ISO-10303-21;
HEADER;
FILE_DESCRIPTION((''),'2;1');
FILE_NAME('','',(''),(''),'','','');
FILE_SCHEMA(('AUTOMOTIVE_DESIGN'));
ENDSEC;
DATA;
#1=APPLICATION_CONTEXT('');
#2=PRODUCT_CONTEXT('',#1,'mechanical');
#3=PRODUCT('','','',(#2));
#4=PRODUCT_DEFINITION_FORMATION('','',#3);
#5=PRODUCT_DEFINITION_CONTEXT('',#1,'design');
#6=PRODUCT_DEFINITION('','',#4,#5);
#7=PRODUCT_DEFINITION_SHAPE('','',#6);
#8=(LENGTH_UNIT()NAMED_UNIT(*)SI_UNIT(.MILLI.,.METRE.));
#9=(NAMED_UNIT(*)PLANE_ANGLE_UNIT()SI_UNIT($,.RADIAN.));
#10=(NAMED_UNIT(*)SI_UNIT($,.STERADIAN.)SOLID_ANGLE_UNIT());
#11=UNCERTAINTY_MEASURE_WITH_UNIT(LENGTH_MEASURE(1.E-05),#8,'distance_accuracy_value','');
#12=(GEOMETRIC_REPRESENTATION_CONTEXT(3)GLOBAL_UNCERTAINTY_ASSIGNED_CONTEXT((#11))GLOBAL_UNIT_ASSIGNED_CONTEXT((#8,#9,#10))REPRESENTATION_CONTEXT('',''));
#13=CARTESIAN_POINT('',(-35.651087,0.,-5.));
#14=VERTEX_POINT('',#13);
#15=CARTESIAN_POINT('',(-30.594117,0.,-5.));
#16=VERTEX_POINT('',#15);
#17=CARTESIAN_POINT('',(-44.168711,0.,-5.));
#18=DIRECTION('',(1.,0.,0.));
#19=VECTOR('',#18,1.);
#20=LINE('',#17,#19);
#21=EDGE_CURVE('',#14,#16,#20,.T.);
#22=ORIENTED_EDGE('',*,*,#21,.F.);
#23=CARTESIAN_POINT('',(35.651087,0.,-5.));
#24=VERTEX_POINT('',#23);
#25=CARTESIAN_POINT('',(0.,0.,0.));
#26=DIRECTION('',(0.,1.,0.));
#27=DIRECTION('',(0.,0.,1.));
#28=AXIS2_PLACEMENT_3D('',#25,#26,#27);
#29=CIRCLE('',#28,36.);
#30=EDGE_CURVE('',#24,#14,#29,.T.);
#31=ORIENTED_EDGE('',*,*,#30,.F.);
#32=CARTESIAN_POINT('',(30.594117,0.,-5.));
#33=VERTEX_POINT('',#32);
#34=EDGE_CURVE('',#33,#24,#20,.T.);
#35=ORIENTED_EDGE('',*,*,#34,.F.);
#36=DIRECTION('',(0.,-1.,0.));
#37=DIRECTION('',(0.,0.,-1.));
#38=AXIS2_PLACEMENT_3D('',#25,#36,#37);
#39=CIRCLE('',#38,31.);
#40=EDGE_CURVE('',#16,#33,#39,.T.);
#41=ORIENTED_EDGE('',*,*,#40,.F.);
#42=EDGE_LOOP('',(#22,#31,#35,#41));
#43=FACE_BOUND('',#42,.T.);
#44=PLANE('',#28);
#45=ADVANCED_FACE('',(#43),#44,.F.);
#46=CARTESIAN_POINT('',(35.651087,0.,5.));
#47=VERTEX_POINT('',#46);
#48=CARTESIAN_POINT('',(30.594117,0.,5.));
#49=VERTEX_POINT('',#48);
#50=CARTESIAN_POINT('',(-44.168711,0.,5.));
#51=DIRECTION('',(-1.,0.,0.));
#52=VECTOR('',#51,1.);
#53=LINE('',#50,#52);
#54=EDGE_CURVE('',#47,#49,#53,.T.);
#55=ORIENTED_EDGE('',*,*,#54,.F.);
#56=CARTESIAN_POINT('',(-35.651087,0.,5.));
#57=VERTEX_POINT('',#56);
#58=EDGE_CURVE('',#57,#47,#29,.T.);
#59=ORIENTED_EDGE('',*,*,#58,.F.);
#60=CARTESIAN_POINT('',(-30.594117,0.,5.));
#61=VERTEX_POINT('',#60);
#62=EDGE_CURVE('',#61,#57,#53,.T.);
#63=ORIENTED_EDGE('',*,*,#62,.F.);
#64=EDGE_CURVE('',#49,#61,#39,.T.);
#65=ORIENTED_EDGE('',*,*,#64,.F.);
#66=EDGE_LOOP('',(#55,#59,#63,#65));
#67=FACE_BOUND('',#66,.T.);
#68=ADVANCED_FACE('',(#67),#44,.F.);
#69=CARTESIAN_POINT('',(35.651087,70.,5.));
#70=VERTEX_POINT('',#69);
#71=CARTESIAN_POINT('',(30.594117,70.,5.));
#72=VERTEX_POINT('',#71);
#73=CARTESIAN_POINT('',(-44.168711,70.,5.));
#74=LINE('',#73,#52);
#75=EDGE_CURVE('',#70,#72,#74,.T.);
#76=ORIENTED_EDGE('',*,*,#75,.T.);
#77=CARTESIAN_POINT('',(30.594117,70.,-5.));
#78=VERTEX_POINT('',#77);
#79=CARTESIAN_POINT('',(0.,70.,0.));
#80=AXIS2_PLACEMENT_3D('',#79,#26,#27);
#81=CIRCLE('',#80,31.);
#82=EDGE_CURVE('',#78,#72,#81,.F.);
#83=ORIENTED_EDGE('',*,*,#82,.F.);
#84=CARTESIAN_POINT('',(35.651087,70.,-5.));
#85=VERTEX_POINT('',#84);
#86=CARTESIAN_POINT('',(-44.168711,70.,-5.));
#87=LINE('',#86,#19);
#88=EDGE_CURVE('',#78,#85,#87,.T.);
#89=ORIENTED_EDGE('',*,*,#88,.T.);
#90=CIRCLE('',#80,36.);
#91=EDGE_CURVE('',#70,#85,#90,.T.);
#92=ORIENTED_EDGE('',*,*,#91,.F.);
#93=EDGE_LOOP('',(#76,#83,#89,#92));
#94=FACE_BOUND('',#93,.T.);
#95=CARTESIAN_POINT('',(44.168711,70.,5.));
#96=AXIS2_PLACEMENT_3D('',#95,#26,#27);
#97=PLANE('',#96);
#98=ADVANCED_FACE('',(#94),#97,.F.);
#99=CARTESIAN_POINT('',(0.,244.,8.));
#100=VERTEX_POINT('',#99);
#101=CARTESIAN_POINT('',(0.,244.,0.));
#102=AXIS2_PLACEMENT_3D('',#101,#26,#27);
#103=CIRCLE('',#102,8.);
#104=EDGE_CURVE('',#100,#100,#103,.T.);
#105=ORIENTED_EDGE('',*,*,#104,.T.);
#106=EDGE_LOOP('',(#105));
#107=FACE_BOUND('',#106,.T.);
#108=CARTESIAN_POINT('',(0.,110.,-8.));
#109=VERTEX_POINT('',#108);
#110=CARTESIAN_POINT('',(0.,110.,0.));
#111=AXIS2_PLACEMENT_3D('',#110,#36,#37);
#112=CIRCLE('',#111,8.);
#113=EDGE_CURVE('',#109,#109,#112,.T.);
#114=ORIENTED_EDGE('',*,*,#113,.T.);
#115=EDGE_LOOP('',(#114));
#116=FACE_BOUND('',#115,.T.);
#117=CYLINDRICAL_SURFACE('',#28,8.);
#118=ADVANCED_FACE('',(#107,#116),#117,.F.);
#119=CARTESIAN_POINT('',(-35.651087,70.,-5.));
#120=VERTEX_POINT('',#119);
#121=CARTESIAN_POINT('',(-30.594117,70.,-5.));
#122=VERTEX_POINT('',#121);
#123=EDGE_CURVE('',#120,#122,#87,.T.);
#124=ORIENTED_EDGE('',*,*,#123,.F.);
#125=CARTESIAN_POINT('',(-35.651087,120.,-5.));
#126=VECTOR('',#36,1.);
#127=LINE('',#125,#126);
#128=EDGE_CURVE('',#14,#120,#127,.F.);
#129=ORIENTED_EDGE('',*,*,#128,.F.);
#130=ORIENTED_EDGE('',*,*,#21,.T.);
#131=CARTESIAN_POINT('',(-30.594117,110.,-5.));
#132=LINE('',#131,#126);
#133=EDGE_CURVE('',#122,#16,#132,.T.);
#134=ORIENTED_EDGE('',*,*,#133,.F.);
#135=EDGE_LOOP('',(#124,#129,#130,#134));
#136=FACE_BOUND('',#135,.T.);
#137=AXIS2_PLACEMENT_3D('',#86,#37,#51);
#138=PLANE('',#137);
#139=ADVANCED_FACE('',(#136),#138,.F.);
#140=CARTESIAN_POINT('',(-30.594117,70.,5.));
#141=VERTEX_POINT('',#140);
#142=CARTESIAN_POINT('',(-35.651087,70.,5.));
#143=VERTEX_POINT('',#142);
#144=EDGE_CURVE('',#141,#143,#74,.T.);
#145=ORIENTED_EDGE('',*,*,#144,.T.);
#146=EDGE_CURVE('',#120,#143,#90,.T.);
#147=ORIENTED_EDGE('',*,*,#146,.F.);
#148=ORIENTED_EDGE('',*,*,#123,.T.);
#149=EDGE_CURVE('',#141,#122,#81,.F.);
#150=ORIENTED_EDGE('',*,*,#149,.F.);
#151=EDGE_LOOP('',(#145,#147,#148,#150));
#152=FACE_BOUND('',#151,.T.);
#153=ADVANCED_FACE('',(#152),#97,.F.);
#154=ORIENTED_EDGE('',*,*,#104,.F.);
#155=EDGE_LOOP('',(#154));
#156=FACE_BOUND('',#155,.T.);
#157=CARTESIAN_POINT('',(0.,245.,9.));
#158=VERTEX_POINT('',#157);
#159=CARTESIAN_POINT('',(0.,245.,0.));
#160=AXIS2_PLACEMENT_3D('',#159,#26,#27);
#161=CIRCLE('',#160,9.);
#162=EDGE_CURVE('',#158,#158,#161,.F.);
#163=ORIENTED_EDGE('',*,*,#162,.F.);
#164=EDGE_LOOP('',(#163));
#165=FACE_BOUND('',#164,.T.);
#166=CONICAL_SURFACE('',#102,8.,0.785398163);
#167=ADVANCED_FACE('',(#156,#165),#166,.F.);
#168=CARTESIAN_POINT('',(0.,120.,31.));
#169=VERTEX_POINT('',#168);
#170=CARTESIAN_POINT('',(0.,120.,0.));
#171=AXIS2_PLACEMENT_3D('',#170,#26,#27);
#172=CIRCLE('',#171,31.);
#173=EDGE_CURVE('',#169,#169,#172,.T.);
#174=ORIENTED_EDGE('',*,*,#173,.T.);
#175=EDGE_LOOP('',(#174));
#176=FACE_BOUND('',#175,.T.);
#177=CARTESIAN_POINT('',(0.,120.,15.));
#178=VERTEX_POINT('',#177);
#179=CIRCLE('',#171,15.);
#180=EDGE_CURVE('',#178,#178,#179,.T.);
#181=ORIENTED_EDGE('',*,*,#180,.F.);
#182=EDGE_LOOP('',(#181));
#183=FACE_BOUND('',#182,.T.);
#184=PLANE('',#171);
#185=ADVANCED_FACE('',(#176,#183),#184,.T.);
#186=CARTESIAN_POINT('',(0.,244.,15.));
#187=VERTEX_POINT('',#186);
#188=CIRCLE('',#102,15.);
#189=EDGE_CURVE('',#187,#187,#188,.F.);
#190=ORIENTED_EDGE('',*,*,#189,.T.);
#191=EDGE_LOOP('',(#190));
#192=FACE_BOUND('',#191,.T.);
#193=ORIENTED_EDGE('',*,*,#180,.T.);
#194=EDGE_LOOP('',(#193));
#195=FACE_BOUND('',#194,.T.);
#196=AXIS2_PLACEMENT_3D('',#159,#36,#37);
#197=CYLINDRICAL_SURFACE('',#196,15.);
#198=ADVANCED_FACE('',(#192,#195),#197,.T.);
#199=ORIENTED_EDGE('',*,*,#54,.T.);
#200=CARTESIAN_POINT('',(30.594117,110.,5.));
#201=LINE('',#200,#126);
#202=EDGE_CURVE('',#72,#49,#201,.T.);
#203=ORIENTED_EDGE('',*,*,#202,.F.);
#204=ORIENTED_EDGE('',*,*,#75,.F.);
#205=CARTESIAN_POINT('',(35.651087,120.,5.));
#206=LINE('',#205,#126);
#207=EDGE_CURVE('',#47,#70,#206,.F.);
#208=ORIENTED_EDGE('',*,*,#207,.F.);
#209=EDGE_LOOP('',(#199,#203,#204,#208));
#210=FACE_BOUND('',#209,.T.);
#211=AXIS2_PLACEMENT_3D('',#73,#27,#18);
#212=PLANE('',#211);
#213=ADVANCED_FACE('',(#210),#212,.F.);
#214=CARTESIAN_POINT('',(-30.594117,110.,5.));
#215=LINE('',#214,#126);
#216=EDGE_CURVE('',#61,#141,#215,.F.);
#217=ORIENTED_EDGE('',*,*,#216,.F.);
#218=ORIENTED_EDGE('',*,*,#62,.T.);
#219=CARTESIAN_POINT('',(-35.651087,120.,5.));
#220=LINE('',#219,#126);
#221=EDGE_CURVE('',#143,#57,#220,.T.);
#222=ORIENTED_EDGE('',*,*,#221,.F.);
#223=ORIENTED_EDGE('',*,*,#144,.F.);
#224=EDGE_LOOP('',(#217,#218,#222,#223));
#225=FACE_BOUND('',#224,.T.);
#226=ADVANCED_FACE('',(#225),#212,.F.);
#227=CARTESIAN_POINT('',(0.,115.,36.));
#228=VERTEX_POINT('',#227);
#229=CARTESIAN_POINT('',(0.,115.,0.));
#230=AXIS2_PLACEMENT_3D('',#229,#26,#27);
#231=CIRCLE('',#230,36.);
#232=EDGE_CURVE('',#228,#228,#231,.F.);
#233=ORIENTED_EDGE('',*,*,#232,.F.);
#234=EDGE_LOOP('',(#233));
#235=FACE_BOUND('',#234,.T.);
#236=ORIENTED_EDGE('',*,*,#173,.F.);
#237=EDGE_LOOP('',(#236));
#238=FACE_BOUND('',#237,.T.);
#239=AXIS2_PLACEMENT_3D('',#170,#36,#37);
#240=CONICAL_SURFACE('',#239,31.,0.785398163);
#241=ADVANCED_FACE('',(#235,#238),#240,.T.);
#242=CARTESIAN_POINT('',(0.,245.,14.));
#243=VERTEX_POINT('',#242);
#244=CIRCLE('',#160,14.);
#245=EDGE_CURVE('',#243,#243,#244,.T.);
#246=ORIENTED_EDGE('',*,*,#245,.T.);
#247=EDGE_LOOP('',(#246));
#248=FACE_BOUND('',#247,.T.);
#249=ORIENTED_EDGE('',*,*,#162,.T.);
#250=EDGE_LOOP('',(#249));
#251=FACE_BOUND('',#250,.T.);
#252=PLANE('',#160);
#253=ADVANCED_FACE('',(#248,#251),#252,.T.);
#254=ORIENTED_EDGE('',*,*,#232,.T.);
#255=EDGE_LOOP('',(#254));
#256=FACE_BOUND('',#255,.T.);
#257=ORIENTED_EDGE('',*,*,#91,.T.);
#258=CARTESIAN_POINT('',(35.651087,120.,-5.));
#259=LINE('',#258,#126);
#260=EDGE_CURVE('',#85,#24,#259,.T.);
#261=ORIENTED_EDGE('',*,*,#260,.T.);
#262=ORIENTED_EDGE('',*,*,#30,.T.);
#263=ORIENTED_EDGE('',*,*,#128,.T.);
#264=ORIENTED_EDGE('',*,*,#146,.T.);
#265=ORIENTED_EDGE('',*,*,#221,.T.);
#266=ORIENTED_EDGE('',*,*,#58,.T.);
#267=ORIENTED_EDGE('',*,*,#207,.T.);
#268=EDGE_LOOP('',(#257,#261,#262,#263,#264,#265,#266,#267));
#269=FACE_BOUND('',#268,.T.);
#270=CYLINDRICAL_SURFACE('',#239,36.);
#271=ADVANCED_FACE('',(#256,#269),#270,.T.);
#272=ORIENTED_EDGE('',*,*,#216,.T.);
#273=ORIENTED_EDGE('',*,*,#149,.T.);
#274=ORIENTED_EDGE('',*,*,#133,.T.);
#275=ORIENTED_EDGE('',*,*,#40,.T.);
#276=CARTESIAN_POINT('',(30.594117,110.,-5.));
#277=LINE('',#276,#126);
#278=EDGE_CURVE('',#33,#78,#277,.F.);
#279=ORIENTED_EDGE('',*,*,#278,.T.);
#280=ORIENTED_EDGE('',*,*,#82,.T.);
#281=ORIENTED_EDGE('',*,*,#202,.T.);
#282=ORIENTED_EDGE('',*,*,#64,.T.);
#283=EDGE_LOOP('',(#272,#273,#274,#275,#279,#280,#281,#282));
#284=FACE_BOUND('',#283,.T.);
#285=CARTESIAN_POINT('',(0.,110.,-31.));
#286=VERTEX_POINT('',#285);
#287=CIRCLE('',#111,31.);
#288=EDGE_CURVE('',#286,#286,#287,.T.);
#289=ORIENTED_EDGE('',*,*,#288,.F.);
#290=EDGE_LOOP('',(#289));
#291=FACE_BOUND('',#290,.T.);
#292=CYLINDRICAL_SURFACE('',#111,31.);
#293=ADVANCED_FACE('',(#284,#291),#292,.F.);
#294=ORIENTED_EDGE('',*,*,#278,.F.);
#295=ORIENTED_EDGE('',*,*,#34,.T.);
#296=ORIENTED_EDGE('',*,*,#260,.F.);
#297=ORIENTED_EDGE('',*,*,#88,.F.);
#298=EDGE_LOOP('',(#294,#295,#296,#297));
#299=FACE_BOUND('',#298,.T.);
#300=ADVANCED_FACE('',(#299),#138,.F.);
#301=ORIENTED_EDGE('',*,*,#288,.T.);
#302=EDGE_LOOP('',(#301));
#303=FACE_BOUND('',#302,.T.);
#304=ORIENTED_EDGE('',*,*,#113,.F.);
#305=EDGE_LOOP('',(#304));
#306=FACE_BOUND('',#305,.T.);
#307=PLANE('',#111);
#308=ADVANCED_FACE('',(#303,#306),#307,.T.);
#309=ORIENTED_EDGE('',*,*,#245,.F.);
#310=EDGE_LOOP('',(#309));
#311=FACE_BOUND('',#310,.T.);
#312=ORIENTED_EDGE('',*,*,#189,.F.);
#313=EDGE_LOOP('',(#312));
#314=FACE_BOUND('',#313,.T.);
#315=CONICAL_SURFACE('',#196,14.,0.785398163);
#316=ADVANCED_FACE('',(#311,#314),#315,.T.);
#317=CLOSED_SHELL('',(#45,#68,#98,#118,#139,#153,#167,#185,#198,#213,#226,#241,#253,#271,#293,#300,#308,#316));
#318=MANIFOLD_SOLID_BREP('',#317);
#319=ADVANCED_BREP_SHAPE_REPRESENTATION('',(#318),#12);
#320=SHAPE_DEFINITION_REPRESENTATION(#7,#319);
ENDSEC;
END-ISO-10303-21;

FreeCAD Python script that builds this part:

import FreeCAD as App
import Part
import Sketcher

V = App.Vector
Q = App.Units.Quantity


def edges_at(feature, points):
    """Names of the edges that pass closest to the given points."""
    edges = feature.Shape.Edges
    near = lambda p: min(range(len(edges)), key=lambda i: edges[i].distToShape(Part.Vertex(*p))[0])
    return sorted({f"Edge{near(p) + 1}" for p in points})

doc = App.newDocument("Part")
body = doc.addObject("PartDesign::Body", "Body")

# Sketch on XZ plane
sketch1 = body.newObject("Sketcher::SketchObject", "Sketch")
sketch1.AttachmentSupport = (doc.getObject("XZ_Plane"), [""])
sketch1.MapMode = "FlatFace"
sketch1.addGeometry(Part.Circle(V(0, 0, 0), V(0, 0, 1), 36), False)
sketch1.addConstraint([
    Sketcher.Constraint("Coincident", 0, 3, -1, 1),
    Sketcher.Constraint("Diameter", 0, Q("72 mm")),
])
pad1 = body.newObject("PartDesign::Pad", "Pad")
pad1.Profile = sketch1
pad1.Length = 120
pad1.Reversed = True

# Sketch on XZ plane
sketch2 = body.newObject("Sketcher::SketchObject", "Sketch001")
sketch2.AttachmentSupport = (doc.getObject("XZ_Plane"), [""])
sketch2.MapMode = "FlatFace"
sketch2.addGeometry(Part.Circle(V(0, 0, 0), V(0, 0, 1), 31), False)
sketch2.addConstraint([
    Sketcher.Constraint("Coincident", 0, 3, -1, 1),
    Sketcher.Constraint("Diameter", 0, Q("62 mm")),
])
pocket1 = body.newObject("PartDesign::Pocket", "Pocket")
pocket1.Profile = sketch2
pocket1.Length = 110
doc.recompute()

chamfer = body.newObject("PartDesign::Chamfer", "Chamfer")
chamfer.Base = (pocket1, edges_at(pocket1, [(0, 120, -36)]))
chamfer.Size = 5

# Sketch on XZ plane
sketch3 = body.newObject("Sketcher::SketchObject", "Sketch002")
sketch3.AttachmentSupport = (doc.getObject("XZ_Plane"), [""])
sketch3.MapMode = "FlatFace"
sketch3.AttachmentOffset = App.Placement(V(0, 0, -120), App.Rotation())
sketch3.addGeometry(Part.Circle(V(0, 0, 0), V(0, 0, 1), 15), False)
sketch3.addConstraint([
    Sketcher.Constraint("Coincident", 0, 3, -1, 1),
    Sketcher.Constraint("Diameter", 0, Q("30 mm")),
])
pad2 = body.newObject("PartDesign::Pad", "Pad001")
pad2.Profile = sketch3
pad2.Length = 125
pad2.Reversed = True

# Sketch on XZ plane
sketch4 = body.newObject("Sketcher::SketchObject", "Sketch003")
sketch4.AttachmentSupport = (doc.getObject("XZ_Plane"), [""])
sketch4.MapMode = "FlatFace"
sketch4.AttachmentOffset = App.Placement(V(0, 0, -245), App.Rotation())
sketch4.addGeometry(Part.Circle(V(0, 0, 0), V(0, 0, 1), 8), False)
sketch4.addConstraint([
    Sketcher.Constraint("Coincident", 0, 3, -1, 1),
    Sketcher.Constraint("Diameter", 0, Q("16 mm")),
])
pocket2 = body.newObject("PartDesign::Pocket", "Pocket001")
pocket2.Profile = sketch4
pocket2.Type = "ThroughAll"
pocket2.Reversed = True
doc.recompute()

chamfer2 = body.newObject("PartDesign::Chamfer", "Chamfer001")
chamfer2.Base = (pocket2, edges_at(pocket2, [(0, 245, -15), (0, 245, -8)]))
chamfer2.Size = 1

# Sketch on XZ plane
sketch5 = body.newObject("Sketcher::SketchObject", "Sketch004")
sketch5.AttachmentSupport = (doc.getObject("XZ_Plane"), [""])
sketch5.MapMode = "FlatFace"
sketch5.addGeometry([
    Part.LineSegment(V(-44, 5, 0), V(-44, -5, 0)),
    Part.LineSegment(V(-44, -5, 0), V(44, -5, 0)),
    Part.LineSegment(V(44, -5, 0), V(44, 5, 0)),
    Part.LineSegment(V(44, 5, 0), V(-44, 5, 0)),
], False)
sketch5.addConstraint([
    Sketcher.Constraint("Coincident", 0, 2, 1, 1),
    Sketcher.Constraint("Coincident", 1, 2, 2, 1),
    Sketcher.Constraint("Coincident", 2, 2, 3, 1),
    Sketcher.Constraint("Coincident", 3, 2, 0, 1),
    Sketcher.Constraint("Vertical", 0),
    Sketcher.Constraint("Horizontal", 1),
    Sketcher.Constraint("Vertical", 2),
    Sketcher.Constraint("Horizontal", 3),
    Sketcher.Constraint("Symmetric", 0, 2, 2, 2, -1, 1),
    Sketcher.Constraint("DistanceY", 0, 2, 0, 1, Q("10 mm")),
    Sketcher.Constraint("DistanceX", 1, 1, 1, 2, Q("88.337421 mm")),
])
pocket3 = body.newObject("PartDesign::Pocket", "Pocket002")
pocket3.Profile = sketch5
pocket3.Length = 70

doc.recompute()
